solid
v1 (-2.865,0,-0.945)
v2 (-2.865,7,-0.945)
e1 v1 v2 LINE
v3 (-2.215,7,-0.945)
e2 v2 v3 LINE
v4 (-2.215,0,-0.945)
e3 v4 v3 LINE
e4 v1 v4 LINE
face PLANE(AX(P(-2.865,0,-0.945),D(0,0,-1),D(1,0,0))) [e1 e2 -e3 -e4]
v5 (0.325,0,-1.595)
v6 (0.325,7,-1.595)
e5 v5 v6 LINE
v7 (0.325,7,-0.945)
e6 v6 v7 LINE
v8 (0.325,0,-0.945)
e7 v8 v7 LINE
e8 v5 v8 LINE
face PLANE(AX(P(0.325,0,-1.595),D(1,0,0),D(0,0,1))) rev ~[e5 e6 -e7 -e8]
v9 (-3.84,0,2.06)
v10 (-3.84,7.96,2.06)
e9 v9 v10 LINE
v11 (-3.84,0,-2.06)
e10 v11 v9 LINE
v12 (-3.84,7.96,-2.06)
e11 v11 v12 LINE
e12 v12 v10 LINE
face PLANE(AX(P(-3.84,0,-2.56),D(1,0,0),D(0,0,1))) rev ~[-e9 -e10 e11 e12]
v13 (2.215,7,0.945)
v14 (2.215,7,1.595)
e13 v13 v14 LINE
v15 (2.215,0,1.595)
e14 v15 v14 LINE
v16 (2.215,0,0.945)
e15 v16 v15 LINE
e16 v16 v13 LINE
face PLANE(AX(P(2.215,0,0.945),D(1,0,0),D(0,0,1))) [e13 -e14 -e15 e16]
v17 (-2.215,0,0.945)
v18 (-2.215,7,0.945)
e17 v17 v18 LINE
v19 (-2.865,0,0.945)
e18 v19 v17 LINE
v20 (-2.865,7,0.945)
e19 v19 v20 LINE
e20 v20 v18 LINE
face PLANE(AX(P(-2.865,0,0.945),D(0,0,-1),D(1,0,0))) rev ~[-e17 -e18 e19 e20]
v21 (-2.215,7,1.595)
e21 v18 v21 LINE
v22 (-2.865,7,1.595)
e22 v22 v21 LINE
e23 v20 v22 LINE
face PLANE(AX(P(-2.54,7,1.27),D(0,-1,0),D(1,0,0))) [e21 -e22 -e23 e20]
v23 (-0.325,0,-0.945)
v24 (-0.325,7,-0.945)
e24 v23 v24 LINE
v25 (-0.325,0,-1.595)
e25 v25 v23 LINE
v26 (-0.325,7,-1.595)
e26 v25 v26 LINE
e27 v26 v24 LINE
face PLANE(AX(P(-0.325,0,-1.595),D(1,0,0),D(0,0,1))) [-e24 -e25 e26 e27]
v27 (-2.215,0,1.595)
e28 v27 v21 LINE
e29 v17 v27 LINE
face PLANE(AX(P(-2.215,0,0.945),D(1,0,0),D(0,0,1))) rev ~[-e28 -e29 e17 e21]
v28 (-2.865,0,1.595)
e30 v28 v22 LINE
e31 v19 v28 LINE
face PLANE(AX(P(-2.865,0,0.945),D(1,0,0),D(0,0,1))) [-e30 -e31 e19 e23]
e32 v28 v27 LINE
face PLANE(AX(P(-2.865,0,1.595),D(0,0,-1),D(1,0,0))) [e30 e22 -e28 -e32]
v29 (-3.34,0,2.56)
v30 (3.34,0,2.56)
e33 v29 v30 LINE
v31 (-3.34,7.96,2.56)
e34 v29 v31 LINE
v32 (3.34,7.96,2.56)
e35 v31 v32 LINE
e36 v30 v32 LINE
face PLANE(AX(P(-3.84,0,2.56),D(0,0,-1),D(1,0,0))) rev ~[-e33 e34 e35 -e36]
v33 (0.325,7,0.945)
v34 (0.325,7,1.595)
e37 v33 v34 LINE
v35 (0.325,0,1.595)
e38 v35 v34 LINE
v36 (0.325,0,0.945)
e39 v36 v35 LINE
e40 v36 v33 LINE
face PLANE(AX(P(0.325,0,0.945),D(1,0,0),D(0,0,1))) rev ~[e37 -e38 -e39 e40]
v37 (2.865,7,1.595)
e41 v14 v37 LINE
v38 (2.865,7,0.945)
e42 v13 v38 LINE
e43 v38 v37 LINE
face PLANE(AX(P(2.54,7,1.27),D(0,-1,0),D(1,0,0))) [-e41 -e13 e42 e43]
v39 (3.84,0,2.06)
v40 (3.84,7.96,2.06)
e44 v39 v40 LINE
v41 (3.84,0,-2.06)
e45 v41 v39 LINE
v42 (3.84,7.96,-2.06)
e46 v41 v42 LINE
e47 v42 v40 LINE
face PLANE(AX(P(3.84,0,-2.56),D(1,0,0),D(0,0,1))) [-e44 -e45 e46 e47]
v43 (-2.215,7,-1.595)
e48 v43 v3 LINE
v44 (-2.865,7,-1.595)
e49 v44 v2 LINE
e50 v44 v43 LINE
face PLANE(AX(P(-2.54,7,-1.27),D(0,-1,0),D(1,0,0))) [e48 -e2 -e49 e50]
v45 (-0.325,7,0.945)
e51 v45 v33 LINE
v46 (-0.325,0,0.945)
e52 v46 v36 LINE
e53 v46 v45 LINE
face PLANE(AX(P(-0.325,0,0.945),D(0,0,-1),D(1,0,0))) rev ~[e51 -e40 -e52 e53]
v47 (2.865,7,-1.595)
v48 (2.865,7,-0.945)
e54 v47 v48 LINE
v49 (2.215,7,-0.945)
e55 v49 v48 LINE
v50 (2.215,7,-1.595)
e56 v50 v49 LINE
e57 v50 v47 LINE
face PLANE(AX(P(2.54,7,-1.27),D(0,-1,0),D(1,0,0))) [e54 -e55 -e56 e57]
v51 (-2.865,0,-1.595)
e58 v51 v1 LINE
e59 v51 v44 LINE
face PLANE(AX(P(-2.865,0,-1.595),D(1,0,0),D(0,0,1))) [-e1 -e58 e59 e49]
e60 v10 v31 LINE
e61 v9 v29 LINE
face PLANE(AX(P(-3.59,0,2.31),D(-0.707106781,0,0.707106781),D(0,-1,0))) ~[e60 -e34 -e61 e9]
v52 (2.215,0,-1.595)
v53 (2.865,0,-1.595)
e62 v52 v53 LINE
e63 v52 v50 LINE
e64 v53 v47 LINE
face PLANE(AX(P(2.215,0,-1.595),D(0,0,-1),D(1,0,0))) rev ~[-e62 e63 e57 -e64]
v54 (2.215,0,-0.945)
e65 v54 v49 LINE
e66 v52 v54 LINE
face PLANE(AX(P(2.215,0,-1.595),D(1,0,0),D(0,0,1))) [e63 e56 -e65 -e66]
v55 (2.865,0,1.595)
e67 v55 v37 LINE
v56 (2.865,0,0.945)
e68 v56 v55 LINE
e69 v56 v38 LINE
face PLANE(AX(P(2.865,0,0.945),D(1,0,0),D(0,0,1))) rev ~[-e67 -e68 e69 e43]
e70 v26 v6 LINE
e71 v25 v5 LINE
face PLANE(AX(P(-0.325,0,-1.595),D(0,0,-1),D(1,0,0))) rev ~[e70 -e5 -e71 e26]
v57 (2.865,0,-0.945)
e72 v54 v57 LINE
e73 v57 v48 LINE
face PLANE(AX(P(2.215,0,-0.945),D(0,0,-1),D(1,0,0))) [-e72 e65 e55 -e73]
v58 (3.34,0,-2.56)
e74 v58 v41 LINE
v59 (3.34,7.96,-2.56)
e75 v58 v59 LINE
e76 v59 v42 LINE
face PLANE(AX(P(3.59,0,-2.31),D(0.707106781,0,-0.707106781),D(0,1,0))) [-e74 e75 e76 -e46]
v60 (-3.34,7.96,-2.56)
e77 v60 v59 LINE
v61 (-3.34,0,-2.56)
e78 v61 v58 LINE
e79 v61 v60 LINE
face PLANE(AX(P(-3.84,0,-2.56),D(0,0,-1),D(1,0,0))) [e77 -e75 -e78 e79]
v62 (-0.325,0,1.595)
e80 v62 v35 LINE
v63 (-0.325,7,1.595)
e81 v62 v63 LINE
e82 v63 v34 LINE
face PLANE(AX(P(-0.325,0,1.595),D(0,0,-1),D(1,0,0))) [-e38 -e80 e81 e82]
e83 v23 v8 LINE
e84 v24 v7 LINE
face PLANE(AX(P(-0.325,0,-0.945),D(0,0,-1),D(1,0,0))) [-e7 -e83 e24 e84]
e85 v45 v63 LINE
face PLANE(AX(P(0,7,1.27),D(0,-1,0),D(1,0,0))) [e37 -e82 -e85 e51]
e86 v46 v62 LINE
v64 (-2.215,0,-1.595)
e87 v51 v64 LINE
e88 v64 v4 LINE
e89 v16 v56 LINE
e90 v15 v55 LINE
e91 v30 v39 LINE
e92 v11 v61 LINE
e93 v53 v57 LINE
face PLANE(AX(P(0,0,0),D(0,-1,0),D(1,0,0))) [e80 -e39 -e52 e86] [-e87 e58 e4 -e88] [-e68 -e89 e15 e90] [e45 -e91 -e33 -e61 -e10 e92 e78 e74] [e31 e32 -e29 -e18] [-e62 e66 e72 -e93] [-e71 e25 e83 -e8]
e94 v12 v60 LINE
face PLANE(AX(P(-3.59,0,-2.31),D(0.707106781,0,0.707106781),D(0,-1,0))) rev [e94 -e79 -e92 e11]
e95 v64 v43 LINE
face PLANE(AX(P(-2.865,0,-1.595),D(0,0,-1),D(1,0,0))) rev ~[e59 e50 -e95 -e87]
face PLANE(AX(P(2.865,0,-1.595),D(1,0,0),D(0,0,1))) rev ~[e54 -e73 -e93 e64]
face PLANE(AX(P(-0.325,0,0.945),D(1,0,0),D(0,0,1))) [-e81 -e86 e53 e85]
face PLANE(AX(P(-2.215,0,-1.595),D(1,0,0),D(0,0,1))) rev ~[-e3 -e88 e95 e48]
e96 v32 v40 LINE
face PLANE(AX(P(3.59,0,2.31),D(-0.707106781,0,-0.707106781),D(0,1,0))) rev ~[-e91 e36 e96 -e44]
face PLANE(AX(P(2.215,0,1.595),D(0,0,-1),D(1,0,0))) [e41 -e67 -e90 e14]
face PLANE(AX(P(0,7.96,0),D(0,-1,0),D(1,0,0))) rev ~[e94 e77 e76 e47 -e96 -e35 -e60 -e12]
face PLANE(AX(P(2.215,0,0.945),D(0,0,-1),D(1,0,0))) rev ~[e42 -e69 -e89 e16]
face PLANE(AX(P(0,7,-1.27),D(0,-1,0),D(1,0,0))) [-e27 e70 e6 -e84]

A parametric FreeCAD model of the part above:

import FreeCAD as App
import Part
import Sketcher
from FreeCAD import Vector
Q = App.Units.Quantity


def edges_at(feature, points):
    """Names of the edges that pass closest to the given points."""
    edges = feature.Shape.Edges
    near = lambda p: min(range(len(edges)), key=lambda i: edges[i].distToShape(Part.Vertex(*p))[0])
    return sorted({f"Edge{near(p) + 1}" for p in points})

doc = App.newDocument("Part")
body = doc.addObject("PartDesign::Body", "Body")

sketch1 = body.newObject("Sketcher::SketchObject", "Sketch")
sketch1.AttachmentSupport = (doc.getObject("XZ_Plane"), [""])
sketch1.MapMode = "FlatFace"
sketch1.addGeometry([
    Part.LineSegment(Vector(-4, 3, 0), Vector(-4, -3, 0)),
    Part.LineSegment(Vector(-4, -3, 0), Vector(4, -3, 0)),
    Part.LineSegment(Vector(4, -3, 0), Vector(4, 3, 0)),
    Part.LineSegment(Vector(4, 3, 0), Vector(-4, 3, 0)),
], False)
sketch1.addConstraint([
    Sketcher.Constraint("Coincident", 0, 2, 1, 1),
    Sketcher.Constraint("Coincident", 1, 2, 2, 1),
    Sketcher.Constraint("Coincident", 2, 2, 3, 1),
    Sketcher.Constraint("Coincident", 3, 2, 0, 1),
    Sketcher.Constraint("Vertical", 0),
    Sketcher.Constraint("Horizontal", 1),
    Sketcher.Constraint("Vertical", 2),
    Sketcher.Constraint("Horizontal", 3),
    Sketcher.Constraint("Symmetric", 0, 2, 2, 2, -1, 1),
    Sketcher.Constraint("DistanceX", 1, 1, 1, 2, Q("7.68 mm")),
    Sketcher.Constraint("DistanceY", 0, 2, 0, 1, Q("5.12 mm")),
])
pad1 = body.newObject("PartDesign::Pad", "Pad")
pad1.Profile = sketch1
pad1.Length = 7.96
pad1.Reversed = True

sketch2 = body.newObject("Sketcher::SketchObject", "Sketch001")
sketch2.AttachmentSupport = (doc.getObject("XZ_Plane"), [""])
sketch2.MapMode = "FlatFace"
sketch2.addGeometry([
    Part.LineSegment(Vector(-2.9, 1.6, 0), Vector(-2.9, 0.9, 0)),
    Part.LineSegment(Vector(-2.9, 0.9, 0), Vector(-2.2, 0.9, 0)),
    Part.LineSegment(Vector(-2.2, 0.9, 0), Vector(-2.2, 1.6, 0)),
    Part.LineSegment(Vector(-2.2, 1.6, 0), Vector(-2.9, 1.6, 0)),
    Part.LineSegment(Vector(-0.3, 1.6, 0), Vector(-0.3, 0.9, 0)),
    Part.LineSegment(Vector(-0.3, 0.9, 0), Vector(0.3, 0.9, 0)),
    Part.LineSegment(Vector(0.3, 0.9, 0), Vector(0.3, 1.6, 0)),
    Part.LineSegment(Vector(0.3, 1.6, 0), Vector(-0.3, 1.6, 0)),
    Part.LineSegment(Vector(2.2, 1.6, 0), Vector(2.2, 0.9, 0)),
    Part.LineSegment(Vector(2.2, 0.9, 0), Vector(2.9, 0.9, 0)),
    Part.LineSegment(Vector(2.9, 0.9, 0), Vector(2.9, 1.6, 0)),
    Part.LineSegment(Vector(2.9, 1.6, 0), Vector(2.2, 1.6, 0)),
    Part.LineSegment(Vector(2.2, -0.9, 0), Vector(2.2, -1.6, 0)),
    Part.LineSegment(Vector(2.2, -1.6, 0), Vector(2.9, -1.6, 0)),
    Part.LineSegment(Vector(2.9, -1.6, 0), Vector(2.9, -0.9, 0)),
    Part.LineSegment(Vector(2.9, -0.9, 0), Vector(2.2, -0.9, 0)),
    Part.LineSegment(Vector(-0.3, -0.9, 0), Vector(-0.3, -1.6, 0)),
    Part.LineSegment(Vector(-0.3, -1.6, 0), Vector(0.3, -1.6, 0)),
    Part.LineSegment(Vector(0.3, -1.6, 0), Vector(0.3, -0.9, 0)),
    Part.LineSegment(Vector(0.3, -0.9, 0), Vector(-0.3, -0.9, 0)),
    Part.LineSegment(Vector(-2.9, -0.9, 0), Vector(-2.9, -1.6, 0)),
    Part.LineSegment(Vector(-2.9, -1.6, 0), Vector(-2.2, -1.6, 0)),
    Part.LineSegment(Vector(-2.2, -1.6, 0), Vector(-2.2, -0.9, 0)),
    Part.LineSegment(Vector(-2.2, -0.9, 0), Vector(-2.9, -0.9, 0)),
], False)
sketch2.addConstraint([
    Sketcher.Constraint("Coincident", 0, 2, 1, 1),
    Sketcher.Constraint("Coincident", 1, 2, 2, 1),
    Sketcher.Constraint("Coincident", 2, 2, 3, 1),
    Sketcher.Constraint("Coincident", 3, 2, 0, 1),
    Sketcher.Constraint("Coincident", 4, 2, 5, 1),
    Sketcher.Constraint("Coincident", 5, 2, 6, 1),
    Sketcher.Constraint("Coincident", 6, 2, 7, 1),
    Sketcher.Constraint("Coincident", 7, 2, 4, 1),
    Sketcher.Constraint("Coincident", 8, 2, 9, 1),
    Sketcher.Constraint("Coincident", 9, 2, 10, 1),
    Sketcher.Constraint("Coincident", 10, 2, 11, 1),
    Sketcher.Constraint("Coincident", 11, 2, 8, 1),
    Sketcher.Constraint("Coincident", 12, 2, 13, 1),
    Sketcher.Constraint("Coincident", 13, 2, 14, 1),
    Sketcher.Constraint("Coincident", 14, 2, 15, 1),
    Sketcher.Constraint("Coincident", 15, 2, 12, 1),
    Sketcher.Constraint("Coincident", 16, 2, 17, 1),
    Sketcher.Constraint("Coincident", 17, 2, 18, 1),
    Sketcher.Constraint("Coincident", 18, 2, 19, 1),
    Sketcher.Constraint("Coincident", 19, 2, 16, 1),
    Sketcher.Constraint("Coincident", 20, 2, 21, 1),
    Sketcher.Constraint("Coincident", 21, 2, 22, 1),
    Sketcher.Constraint("Coincident", 22, 2, 23, 1),
    Sketcher.Constraint("Coincident", 23, 2, 20, 1),
    Sketcher.Constraint("Vertical", 0),
    Sketcher.Constraint("Horizontal", 1),
    Sketcher.Constraint("Vertical", 2),
    Sketcher.Constraint("Horizontal", 3),
    Sketcher.Constraint("Vertical", 4),
    Sketcher.Constraint("Horizontal", 5),
    Sketcher.Constraint("Vertical", 6),
    Sketcher.Constraint("Horizontal", 7),
    Sketcher.Constraint("Vertical", 8),
    Sketcher.Constraint("Horizontal", 9),
    Sketcher.Constraint("Vertical", 10),
    Sketcher.Constraint("Horizontal", 11),
    Sketcher.Constraint("Vertical", 12),
    Sketcher.Constraint("Horizontal", 13),
    Sketcher.Constraint("Vertical", 14),
    Sketcher.Constraint("Horizontal", 15),
    Sketcher.Constraint("Vertical", 16),
    Sketcher.Constraint("Horizontal", 17),
    Sketcher.Constraint("Vertical", 18),
    Sketcher.Constraint("Horizontal", 19),
    Sketcher.Constraint("Vertical", 20),
    Sketcher.Constraint("Horizontal", 21),
    Sketcher.Constraint("Vertical", 22),
    Sketcher.Constraint("Horizontal", 23),
    Sketcher.Constraint("Symmetric", 2, 2, 12, 2, -1, 1),
    Sketcher.Constraint("Symmetric", 0, 2, 14, 2, -1, 1),
    Sketcher.Constraint("Symmetric", 6, 2, 16, 2, -1, 1),
    Sketcher.Constraint("Symmetric", 4, 2, 18, 2, -1, 1),
    Sketcher.Constraint("Symmetric", 10, 2, 20, 2, -1, 1),
    Sketcher.Constraint("Symmetric", 8, 2, 22, 2, -1, 1),
    Sketcher.Constraint("Symmetric", 1, 2, 8, 2, -2),
    Sketcher.Constraint("Symmetric", 3, 2, 10, 2, -2),
    Sketcher.Constraint("Horizontal", 1, 2, 4, 2),
    Sketcher.Constraint("Horizontal", 3, 2, 6, 2),
    Sketcher.Constraint("Vertical", 7, 2, 16, 2),
    Sketcher.Constraint("Equal", 3, 5),
    Sketcher.Constraint("Equal", 23, 0),
    Sketcher.Constraint("DistanceX", 1, 1, 1, 2, Q("0.65 mm")),
    Sketcher.Constraint("DistanceX", 1, 2, 4, 2, Q("1.89 mm")),
    Sketcher.Constraint("DistanceY", 12, 2, 8, 2, Q("2.54 mm")),
])
pocket1 = body.newObject("PartDesign::Pocket", "Pocket")
pocket1.Profile = sketch2
pocket1.Length = 7
doc.recompute()

chamfer = body.newObject("PartDesign::Chamfer", "Chamfer")
chamfer.Base = (pocket1, edges_at(pocket1, [
    (3.84, 3.98, 2.56),
    (-3.84, 3.98, 2.56),
    (3.84, 3.98, -2.56),
    (-3.84, 3.98, -2.56),
]))
chamfer.Size = 0.5

doc.recompute()
